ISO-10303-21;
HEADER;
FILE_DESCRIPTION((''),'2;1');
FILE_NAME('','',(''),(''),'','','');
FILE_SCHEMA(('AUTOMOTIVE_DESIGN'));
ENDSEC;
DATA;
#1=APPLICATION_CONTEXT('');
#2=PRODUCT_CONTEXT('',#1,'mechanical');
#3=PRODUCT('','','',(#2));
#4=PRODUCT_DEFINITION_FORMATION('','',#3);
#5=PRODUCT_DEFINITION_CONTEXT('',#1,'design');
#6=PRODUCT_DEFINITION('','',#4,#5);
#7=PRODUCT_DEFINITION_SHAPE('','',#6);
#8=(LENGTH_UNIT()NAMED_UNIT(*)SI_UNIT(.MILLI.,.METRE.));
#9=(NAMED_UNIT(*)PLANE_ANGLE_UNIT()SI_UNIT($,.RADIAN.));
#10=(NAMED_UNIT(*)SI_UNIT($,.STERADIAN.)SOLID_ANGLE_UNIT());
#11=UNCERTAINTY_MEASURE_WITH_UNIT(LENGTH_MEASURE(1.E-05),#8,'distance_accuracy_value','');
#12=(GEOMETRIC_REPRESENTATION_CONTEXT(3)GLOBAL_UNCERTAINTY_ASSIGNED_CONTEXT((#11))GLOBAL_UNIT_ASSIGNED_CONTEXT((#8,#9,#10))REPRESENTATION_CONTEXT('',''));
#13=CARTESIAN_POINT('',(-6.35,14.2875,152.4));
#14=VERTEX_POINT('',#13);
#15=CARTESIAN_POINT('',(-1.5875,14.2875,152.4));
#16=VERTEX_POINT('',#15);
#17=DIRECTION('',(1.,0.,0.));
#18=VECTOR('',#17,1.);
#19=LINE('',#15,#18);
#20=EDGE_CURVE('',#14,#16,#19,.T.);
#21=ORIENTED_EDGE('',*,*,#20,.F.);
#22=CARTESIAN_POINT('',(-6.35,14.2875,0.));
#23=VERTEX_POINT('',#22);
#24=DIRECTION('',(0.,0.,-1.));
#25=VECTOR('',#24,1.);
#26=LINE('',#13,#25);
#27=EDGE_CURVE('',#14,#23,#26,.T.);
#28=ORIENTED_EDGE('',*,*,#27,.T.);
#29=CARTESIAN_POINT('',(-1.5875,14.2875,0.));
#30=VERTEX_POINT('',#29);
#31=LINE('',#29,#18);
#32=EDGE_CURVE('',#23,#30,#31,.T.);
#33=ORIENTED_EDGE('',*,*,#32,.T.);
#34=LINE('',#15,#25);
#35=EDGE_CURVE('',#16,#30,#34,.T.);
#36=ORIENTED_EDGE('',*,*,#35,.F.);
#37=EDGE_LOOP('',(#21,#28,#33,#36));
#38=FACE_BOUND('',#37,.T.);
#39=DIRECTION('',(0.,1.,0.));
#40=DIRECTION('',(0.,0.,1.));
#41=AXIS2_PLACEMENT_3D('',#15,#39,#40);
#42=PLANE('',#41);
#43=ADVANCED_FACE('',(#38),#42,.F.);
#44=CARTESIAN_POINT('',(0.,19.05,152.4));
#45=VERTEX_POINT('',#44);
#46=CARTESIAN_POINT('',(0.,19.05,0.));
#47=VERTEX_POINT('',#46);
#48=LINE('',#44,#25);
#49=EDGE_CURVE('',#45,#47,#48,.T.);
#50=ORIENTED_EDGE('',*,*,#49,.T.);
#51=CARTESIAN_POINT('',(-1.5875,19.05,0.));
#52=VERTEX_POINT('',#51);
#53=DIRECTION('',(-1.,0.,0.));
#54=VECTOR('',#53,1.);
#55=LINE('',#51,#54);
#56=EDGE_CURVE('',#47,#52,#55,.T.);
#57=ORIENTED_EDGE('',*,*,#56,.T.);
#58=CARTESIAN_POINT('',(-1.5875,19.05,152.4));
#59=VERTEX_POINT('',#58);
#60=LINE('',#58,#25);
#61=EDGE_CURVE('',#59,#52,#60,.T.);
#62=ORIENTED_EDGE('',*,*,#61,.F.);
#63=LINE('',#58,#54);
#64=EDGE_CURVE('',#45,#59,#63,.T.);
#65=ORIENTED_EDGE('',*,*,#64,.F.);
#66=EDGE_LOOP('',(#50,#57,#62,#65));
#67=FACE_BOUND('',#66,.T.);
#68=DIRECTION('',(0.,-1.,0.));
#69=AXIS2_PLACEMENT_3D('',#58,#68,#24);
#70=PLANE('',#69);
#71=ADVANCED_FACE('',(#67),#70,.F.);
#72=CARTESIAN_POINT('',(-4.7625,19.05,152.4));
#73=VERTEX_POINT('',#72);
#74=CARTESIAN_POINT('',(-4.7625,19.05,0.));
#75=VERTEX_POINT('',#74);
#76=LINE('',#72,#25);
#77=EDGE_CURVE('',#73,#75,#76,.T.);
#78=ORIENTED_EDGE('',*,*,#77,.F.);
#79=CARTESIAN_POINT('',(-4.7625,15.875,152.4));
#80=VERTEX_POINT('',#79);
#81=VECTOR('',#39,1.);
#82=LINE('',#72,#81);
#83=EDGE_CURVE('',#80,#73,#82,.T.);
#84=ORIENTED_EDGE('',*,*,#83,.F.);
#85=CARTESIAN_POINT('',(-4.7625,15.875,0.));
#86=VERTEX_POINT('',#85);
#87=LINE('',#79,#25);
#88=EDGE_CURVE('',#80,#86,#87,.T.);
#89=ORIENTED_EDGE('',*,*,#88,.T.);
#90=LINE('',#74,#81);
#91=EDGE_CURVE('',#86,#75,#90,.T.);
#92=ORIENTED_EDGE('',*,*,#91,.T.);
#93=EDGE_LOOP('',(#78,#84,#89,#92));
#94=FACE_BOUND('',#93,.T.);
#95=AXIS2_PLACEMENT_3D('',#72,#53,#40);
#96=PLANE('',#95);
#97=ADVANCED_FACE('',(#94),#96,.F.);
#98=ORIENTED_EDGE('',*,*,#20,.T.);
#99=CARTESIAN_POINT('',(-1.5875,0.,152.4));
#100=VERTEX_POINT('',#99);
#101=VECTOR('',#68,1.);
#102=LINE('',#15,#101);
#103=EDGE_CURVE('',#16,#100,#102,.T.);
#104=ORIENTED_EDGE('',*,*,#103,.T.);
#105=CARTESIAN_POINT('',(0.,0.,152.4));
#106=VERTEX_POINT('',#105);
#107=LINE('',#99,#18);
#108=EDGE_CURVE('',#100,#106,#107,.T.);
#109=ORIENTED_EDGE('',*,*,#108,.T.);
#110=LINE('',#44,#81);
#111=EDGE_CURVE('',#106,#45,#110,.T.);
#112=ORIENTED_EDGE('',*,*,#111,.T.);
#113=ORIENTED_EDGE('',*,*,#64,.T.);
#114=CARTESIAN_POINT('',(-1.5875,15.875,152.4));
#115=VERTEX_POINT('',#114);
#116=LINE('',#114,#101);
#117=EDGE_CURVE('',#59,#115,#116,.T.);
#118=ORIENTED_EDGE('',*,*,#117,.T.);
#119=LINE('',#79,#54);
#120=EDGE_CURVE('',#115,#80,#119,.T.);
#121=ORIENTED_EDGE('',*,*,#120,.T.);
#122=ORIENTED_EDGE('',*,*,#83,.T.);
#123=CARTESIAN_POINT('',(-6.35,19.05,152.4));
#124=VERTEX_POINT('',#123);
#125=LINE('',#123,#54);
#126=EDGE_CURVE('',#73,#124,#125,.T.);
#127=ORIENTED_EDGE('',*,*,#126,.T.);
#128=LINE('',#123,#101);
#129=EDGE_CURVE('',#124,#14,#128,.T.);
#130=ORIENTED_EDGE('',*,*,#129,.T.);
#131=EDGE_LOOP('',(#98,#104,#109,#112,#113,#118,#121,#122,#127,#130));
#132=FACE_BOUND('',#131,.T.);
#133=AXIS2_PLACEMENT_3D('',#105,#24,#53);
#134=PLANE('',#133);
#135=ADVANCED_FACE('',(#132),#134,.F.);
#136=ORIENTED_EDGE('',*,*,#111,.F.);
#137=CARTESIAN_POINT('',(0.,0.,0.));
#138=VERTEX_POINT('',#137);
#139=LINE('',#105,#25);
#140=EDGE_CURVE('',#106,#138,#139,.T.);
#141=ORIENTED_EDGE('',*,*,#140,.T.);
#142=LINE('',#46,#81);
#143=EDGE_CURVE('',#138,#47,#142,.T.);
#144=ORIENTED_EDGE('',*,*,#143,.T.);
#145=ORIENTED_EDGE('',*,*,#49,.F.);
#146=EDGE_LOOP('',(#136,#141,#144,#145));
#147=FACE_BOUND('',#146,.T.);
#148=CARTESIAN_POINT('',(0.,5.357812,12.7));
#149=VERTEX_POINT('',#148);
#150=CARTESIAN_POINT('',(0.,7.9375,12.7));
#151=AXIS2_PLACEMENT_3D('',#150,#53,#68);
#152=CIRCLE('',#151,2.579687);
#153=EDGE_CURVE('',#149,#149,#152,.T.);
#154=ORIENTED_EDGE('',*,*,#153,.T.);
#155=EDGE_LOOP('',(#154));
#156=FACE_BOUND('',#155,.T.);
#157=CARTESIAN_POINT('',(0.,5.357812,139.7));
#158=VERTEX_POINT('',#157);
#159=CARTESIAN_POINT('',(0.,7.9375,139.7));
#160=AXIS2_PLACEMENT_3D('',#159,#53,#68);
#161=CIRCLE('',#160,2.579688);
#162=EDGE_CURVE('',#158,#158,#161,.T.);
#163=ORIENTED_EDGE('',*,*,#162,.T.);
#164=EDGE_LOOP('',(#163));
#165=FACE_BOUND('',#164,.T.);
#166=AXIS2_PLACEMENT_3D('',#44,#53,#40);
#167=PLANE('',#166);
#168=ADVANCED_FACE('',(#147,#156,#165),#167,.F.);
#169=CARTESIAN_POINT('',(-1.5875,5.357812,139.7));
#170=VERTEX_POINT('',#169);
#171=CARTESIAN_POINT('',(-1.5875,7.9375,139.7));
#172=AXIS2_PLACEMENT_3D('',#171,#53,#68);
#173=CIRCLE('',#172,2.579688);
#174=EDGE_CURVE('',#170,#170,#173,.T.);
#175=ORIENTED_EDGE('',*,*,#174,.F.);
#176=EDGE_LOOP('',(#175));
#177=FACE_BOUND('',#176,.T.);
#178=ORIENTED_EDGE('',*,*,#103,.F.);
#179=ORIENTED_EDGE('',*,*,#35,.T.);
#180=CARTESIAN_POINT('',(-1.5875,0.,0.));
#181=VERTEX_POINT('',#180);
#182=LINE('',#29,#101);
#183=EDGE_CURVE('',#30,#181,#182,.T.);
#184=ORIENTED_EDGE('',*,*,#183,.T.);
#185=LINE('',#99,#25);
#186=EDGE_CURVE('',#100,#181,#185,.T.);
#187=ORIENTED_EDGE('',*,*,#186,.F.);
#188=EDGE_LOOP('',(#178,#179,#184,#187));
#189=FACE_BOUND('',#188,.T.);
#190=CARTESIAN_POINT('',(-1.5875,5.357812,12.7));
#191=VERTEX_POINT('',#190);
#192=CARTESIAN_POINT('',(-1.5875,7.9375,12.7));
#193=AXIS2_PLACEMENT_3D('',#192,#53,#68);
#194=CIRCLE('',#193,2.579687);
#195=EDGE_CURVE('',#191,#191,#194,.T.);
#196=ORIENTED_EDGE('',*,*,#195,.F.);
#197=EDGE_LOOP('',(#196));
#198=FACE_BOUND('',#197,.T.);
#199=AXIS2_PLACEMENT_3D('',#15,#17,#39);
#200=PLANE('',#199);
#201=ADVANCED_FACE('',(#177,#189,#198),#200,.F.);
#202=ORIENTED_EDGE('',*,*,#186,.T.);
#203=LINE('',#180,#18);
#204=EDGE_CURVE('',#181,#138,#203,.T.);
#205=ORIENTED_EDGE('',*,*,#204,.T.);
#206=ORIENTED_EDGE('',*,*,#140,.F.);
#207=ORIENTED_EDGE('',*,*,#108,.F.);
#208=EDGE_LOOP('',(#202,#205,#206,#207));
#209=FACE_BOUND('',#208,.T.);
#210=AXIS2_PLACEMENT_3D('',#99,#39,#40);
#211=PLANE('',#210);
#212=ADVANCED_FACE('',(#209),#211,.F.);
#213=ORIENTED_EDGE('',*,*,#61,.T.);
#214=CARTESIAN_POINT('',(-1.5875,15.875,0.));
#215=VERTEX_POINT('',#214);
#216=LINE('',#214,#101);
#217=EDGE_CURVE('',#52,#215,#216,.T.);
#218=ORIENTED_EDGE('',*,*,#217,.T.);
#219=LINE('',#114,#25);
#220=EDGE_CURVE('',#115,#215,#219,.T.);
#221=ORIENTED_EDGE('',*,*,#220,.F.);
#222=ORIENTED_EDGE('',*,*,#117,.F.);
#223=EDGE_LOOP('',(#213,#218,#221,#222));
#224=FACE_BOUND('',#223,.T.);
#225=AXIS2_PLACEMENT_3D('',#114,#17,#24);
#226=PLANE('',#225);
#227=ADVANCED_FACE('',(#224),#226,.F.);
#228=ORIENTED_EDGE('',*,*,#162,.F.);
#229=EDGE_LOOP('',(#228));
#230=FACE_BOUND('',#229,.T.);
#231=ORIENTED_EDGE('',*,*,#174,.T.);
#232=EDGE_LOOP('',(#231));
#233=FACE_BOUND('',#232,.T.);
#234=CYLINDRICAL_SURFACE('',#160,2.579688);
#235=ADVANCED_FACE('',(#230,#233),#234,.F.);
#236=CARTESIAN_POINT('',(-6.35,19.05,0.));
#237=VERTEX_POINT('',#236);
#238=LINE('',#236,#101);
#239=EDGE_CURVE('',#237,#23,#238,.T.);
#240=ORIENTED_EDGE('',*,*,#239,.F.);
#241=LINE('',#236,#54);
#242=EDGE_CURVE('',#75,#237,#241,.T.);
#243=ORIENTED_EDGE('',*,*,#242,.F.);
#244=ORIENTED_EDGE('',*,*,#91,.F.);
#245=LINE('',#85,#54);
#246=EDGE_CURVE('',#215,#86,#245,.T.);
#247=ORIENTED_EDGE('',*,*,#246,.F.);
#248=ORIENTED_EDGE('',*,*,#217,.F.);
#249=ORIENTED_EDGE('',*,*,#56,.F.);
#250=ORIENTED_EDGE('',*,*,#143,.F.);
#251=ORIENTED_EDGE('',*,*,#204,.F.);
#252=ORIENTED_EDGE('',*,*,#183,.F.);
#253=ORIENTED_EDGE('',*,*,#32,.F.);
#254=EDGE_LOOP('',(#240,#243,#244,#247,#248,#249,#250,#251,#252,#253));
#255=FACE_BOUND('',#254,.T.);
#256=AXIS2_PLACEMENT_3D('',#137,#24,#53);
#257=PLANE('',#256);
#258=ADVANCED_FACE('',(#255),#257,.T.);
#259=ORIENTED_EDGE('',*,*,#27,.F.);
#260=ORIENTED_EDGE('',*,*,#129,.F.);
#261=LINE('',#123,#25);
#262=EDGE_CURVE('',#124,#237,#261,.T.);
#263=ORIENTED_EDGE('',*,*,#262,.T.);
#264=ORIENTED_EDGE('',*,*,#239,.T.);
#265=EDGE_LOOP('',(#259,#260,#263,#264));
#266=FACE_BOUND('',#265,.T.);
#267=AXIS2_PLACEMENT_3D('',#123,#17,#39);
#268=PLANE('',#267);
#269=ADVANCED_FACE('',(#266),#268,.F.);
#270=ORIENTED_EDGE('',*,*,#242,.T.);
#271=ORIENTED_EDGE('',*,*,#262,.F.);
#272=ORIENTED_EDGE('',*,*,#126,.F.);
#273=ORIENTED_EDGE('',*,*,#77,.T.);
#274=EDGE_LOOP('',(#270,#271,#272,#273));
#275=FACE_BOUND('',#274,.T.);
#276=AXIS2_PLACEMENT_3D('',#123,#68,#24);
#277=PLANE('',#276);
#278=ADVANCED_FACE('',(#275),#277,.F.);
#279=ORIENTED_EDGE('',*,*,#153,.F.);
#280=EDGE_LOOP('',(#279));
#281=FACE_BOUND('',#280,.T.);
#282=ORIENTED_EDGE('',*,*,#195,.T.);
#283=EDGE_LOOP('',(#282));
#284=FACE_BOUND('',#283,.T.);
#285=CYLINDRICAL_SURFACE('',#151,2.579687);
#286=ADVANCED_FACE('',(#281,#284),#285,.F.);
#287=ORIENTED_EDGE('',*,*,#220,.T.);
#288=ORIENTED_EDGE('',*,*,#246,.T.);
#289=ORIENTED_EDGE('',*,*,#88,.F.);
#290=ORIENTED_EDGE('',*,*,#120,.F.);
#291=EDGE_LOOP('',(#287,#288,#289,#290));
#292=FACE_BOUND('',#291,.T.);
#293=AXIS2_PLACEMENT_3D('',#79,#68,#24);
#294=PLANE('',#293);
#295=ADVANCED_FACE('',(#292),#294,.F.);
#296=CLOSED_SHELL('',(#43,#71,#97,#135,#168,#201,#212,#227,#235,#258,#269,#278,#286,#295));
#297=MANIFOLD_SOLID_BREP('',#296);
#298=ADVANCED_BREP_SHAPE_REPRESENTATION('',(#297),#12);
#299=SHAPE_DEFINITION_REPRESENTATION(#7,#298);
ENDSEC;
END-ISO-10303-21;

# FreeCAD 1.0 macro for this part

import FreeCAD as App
import Part
import Sketcher
from FreeCAD import Vector
Q = App.Units.Quantity

doc = App.newDocument("Part")
params = doc.addObject("Spreadsheet::Sheet", "Params")
for row, (alias, value) in enumerate([
    ("sketch1_height", "0.75 in"),
    ("sketch1_width", "0.0625 in"),
    ("sketch1_width2", "0.1875 in"),
    ("pad1_length", "6 in"),
    ("sketch2_diameter", "0.203125 in"),
], start=1):
    params.set(f"A{row}", alias)
    params.set(f"B{row}", "=" + value)
    params.setAlias(f"B{row}", alias)

body = doc.addObject("PartDesign::Body", "Body")

# Sketch on XY plane
sketch1 = body.newObject("Sketcher::SketchObject", "Sketch")
sketch1.AttachmentSupport = (doc.getObject("XY_Plane"), [""])
sketch1.MapMode = "FlatFace"
sketch1.addGeometry([
    Part.LineSegment(Vector(-4.7625, 19.05, 0), Vector(-6.35, 19.05, 0)),  # 0
    Part.LineSegment(Vector(-6.35, 19.05, 0), Vector(-6.35, 14.2875, 0)),  # 1
    Part.LineSegment(Vector(-6.35, 14.2875, 0), Vector(-1.5875, 14.2875, 0)),  # 2
    Part.LineSegment(Vector(-1.5875, 14.2875, 0), Vector(-1.5875, 0, 0)),  # 3
    Part.LineSegment(Vector(-1.5875, 0, 0), Vector(0, 0, 0)),  # 4
    Part.LineSegment(Vector(0, 0, 0), Vector(0, 19.05, 0)),  # 5
    Part.LineSegment(Vector(0, 19.05, 0), Vector(-1.5875, 19.05, 0)),  # 6
    Part.LineSegment(Vector(-1.5875, 19.05, 0), Vector(-1.5875, 15.875, 0)),  # 7
    Part.LineSegment(Vector(-1.5875, 15.875, 0), Vector(-4.7625, 15.875, 0)),  # 8
    Part.LineSegment(Vector(-4.7625, 15.875, 0), Vector(-4.7625, 19.05, 0)),  # 9
], False)
sketch1.addConstraint([
    Sketcher.Constraint("Coincident", 0, 2, 1, 1),
    Sketcher.Constraint("Coincident", 1, 2, 2, 1),
    Sketcher.Constraint("Coincident", 2, 2, 3, 1),
    Sketcher.Constraint("Coincident", 3, 2, 4, 1),
    Sketcher.Constraint("Coincident", 4, 2, 5, 1),
    Sketcher.Constraint("Coincident", 5, 2, 6, 1),
    Sketcher.Constraint("Coincident", 6, 2, 7, 1),
    Sketcher.Constraint("Coincident", 7, 2, 8, 1),
    Sketcher.Constraint("Coincident", 8, 2, 9, 1),
    Sketcher.Constraint("Coincident", 9, 2, 0, 1),
    Sketcher.Constraint("Horizontal", 0),
    Sketcher.Constraint("Vertical", 1),
    Sketcher.Constraint("Horizontal", 2),
    Sketcher.Constraint("Vertical", 3),
    Sketcher.Constraint("Horizontal", 4),
    Sketcher.Constraint("Vertical", 5),
    Sketcher.Constraint("Horizontal", 6),
    Sketcher.Constraint("Vertical", 7),
    Sketcher.Constraint("Horizontal", 8),
    Sketcher.Constraint("Vertical", 9),
    Sketcher.Constraint("Coincident", 4, 2, -1, 1),
    Sketcher.Constraint("Horizontal", 0, 2, 5, 2),
    Sketcher.Constraint("Vertical", 3, 2, 6, 2),
    Sketcher.Constraint("Equal", 0, 4),
    Sketcher.Constraint("Equal", 2, 1),
    Sketcher.Constraint("Equal", 8, 7),
    Sketcher.Constraint("DistanceY", 5, 1, 5, 2, Q("0.75 in")),
    Sketcher.Constraint("DistanceX", 0, 2, 0, 1, Q("0.0625 in")),
    Sketcher.Constraint("DistanceX", 2, 1, 2, 2, Q("0.1875 in")),
])
sketch1.setExpression("Constraints[26]", "Params.sketch1_height")
sketch1.setExpression("Constraints[27]", "Params.sketch1_width")
sketch1.setExpression("Constraints[28]", "Params.sketch1_width2")
pad1 = body.newObject("PartDesign::Pad", "Pad")
pad1.Profile = sketch1
pad1.setExpression("Length", "Params.pad1_length")

# Sketch on YZ plane
sketch2 = body.newObject("Sketcher::SketchObject", "Sketch001")
sketch2.AttachmentSupport = (doc.getObject("YZ_Plane"), [""])
sketch2.MapMode = "FlatFace"
sketch2.AttachmentOffset = App.Placement(Vector(0, 0, -0.0625 * 25.4), App.Rotation())
sketch2.addGeometry([
    Part.Circle(Vector(7.9375, 12.7, 0), Vector(0, 0, 1), 2.579687),
    Part.Circle(Vector(7.9375, 139.7, 0), Vector(0, 0, 1), 2.579687),
], False)
sketch2.addConstraint([
    Sketcher.Constraint("Equal", 0, 1),
    Sketcher.Constraint("Vertical", 0, 3, 1, 3),
    Sketcher.Constraint("Diameter", 0, Q("0.203125 in")),
    Sketcher.Constraint("DistanceY", 0, 3, 1, 3, Q("5 in")),
    Sketcher.Constraint("DistanceY", -1, 1, 0, 3, Q("0.5 in")),
    Sketcher.Constraint("DistanceX", -1, 1, 0, 3, Q("0.3125 in")),
])
sketch2.setExpression("Constraints[2]", "Params.sketch2_diameter")
pocket1 = body.newObject("PartDesign::Pocket", "Pocket")
pocket1.Profile = sketch2
pocket1.Type = "ThroughAll"
pocket1.Reversed = True

doc.recompute()
